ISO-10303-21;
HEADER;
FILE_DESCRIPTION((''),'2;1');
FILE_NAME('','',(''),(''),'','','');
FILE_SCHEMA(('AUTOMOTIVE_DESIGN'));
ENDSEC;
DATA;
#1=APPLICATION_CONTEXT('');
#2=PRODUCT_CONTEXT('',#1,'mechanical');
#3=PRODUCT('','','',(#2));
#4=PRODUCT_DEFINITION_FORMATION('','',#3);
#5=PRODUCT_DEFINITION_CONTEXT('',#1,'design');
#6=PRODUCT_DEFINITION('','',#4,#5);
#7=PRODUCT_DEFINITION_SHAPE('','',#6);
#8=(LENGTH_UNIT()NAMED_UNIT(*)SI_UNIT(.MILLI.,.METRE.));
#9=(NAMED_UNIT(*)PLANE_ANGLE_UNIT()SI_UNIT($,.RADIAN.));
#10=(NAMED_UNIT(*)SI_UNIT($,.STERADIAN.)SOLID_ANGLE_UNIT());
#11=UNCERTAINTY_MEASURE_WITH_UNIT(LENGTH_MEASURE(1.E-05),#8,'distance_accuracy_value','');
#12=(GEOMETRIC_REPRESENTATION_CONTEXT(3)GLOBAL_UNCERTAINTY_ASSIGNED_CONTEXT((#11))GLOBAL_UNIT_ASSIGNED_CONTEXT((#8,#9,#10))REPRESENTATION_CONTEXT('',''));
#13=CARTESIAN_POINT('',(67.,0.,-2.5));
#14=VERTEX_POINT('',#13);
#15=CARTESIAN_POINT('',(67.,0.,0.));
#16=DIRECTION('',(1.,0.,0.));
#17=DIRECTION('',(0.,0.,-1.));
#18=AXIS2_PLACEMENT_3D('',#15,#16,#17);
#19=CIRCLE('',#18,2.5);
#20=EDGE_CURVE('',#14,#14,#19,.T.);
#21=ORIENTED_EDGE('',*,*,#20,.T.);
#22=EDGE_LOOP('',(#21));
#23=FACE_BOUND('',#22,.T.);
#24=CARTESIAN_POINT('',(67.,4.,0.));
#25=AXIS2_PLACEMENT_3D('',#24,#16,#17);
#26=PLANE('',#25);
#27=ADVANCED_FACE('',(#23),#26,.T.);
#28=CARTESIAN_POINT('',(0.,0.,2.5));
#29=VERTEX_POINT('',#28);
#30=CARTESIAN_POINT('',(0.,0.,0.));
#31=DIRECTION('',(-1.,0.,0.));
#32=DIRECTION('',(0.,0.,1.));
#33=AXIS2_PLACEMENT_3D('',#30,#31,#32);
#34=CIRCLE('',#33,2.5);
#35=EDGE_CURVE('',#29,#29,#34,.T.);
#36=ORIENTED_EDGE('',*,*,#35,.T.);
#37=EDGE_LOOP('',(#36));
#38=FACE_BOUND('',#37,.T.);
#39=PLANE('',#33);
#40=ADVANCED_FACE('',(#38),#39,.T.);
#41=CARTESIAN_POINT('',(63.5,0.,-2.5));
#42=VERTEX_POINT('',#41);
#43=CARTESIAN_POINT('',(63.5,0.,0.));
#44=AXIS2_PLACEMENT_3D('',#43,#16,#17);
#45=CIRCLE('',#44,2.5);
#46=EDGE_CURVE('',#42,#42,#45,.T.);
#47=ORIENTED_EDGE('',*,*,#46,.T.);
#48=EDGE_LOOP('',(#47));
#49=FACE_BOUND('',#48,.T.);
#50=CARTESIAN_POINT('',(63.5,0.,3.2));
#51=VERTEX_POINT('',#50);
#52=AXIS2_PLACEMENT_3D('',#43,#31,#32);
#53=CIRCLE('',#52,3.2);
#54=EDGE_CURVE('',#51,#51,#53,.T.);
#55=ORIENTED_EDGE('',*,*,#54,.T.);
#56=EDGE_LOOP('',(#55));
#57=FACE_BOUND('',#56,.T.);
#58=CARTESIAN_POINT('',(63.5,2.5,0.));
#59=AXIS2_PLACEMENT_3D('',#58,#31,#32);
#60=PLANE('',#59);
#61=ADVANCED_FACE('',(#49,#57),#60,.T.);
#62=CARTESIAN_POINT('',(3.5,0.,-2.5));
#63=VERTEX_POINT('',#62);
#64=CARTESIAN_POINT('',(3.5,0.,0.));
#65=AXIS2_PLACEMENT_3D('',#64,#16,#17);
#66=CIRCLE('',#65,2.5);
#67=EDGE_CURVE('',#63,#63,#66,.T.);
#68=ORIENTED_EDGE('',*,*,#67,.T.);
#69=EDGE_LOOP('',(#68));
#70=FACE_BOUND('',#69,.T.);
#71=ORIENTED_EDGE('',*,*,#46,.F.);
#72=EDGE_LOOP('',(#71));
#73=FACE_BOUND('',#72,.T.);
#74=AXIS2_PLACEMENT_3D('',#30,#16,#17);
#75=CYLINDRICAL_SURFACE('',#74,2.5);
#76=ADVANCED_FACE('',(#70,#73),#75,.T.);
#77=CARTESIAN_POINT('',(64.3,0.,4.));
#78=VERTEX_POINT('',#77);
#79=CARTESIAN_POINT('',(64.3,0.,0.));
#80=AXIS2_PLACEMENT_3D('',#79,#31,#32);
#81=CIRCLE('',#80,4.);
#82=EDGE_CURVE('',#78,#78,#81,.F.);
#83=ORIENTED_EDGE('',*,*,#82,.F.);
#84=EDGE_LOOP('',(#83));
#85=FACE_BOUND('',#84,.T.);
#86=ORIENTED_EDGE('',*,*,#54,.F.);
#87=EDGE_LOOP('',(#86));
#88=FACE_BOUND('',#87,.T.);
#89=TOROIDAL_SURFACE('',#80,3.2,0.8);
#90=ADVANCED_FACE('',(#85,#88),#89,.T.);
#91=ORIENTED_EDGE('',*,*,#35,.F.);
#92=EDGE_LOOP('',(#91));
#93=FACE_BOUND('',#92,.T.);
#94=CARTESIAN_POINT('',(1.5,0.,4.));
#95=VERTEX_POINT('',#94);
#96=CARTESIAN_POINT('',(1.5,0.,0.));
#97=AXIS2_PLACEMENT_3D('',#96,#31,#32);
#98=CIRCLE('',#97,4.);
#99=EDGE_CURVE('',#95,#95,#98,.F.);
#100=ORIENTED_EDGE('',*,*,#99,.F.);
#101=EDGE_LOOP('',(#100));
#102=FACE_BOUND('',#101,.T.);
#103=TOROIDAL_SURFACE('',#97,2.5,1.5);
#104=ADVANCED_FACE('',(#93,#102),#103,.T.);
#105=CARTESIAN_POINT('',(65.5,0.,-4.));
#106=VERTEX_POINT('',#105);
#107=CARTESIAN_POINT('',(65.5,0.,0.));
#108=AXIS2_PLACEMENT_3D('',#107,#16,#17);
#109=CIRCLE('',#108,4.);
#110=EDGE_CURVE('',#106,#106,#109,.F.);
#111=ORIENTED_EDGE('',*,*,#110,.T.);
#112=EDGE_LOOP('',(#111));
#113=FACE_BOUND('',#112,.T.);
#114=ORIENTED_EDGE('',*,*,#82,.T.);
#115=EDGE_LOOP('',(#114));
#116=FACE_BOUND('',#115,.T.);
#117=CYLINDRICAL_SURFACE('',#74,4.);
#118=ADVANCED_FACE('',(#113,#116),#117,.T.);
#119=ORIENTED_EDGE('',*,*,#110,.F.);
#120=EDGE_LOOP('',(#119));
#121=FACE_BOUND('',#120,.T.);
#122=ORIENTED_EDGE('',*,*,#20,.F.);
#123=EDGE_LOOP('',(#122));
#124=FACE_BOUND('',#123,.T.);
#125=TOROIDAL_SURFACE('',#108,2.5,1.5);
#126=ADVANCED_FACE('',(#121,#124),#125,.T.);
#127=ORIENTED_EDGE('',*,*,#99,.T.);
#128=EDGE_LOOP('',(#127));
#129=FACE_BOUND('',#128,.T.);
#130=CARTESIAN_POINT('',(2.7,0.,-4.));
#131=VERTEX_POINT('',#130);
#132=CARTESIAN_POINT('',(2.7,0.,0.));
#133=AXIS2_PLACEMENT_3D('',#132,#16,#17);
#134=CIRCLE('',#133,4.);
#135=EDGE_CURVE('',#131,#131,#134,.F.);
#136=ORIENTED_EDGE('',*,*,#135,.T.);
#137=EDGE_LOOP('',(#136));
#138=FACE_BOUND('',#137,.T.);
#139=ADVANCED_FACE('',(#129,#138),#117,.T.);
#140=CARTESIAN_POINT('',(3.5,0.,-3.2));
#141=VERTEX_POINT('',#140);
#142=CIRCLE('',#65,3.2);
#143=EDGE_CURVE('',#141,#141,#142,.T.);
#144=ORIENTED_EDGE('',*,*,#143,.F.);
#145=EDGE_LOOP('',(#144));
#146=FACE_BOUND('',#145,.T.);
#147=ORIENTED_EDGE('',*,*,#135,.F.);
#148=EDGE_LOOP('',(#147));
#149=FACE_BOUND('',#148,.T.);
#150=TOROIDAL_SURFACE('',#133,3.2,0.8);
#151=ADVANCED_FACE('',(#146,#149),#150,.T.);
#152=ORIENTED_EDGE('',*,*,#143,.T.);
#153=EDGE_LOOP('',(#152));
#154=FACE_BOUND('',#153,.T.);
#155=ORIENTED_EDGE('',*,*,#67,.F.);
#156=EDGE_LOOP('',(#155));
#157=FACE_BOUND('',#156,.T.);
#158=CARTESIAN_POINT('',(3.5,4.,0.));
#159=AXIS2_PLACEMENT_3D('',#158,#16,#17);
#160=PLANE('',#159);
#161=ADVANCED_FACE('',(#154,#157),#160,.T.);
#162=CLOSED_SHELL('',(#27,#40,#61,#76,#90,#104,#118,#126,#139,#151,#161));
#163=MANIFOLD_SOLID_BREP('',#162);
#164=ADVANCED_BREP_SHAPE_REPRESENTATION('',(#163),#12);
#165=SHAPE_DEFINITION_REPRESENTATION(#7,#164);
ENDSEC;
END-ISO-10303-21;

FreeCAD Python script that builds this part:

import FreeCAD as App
import Part
import Sketcher

V = App.Vector
Q = App.Units.Quantity


def edges_at(feature, points):
    """Names of the edges that pass closest to the given points."""
    edges = feature.Shape.Edges
    near = lambda p: min(range(len(edges)), key=lambda i: edges[i].distToShape(Part.Vertex(*p))[0])
    return sorted({f"Edge{near(p) + 1}" for p in points})


def add_polygon(sketch, points):
    """Adds a closed chain of lines whose ends are joined by coincident constraints."""
    first, n = sketch.GeometryCount, len(points)
    for a, b in zip(points, points[1:] + points[:1]):
        sketch.addGeometry(Part.LineSegment(App.Vector(*a, 0), App.Vector(*b, 0)), False)
    for i in range(n):
        sketch.addConstraint(Sketcher.Constraint("Coincident", first + i, 2, first + (i + 1) % n, 1))

doc = App.newDocument("Part")
body = doc.addObject("PartDesign::Body", "Body")

# Sketch on XY plane
sketch1 = body.newObject("Sketcher::SketchObject", "Sketch")
sketch1.AttachmentSupport = (doc.getObject("XY_Plane"), [""])
sketch1.MapMode = "FlatFace"
add_polygon(sketch1, [(0, 4), (0, 0), (67, 0), (67, 4), (63.5, 4), (63.5, 2.5), (3.5, 2.5), (3.5, 4)])  # lines 0-7
sketch1.addConstraint([
    Sketcher.Constraint("Vertical", 0),
    Sketcher.Constraint("Horizontal", 1),
    Sketcher.Constraint("Vertical", 2),
    Sketcher.Constraint("Horizontal", 3),
    Sketcher.Constraint("Vertical", 4),
    Sketcher.Constraint("Horizontal", 5),
    Sketcher.Constraint("Vertical", 6),
    Sketcher.Constraint("Horizontal", 7),
    Sketcher.Constraint("Coincident", 0, 2, -1, 1),
    Sketcher.Constraint("Horizontal", 3, 2, 6, 2),
    Sketcher.Constraint("Equal", 3, 7),
    Sketcher.Constraint("DistanceX", 1, 1, 1, 2, Q("67 mm")),
    Sketcher.Constraint("DistanceX", 5, 2, 5, 1, Q("60 mm")),
    Sketcher.Constraint("DistanceY", 0, 2, 0, 1, Q("4 mm")),
    Sketcher.Constraint("DistanceY", 4, 2, 4, 1, Q("1.5 mm")),
])
revolution = body.newObject("PartDesign::Revolution", "Revolution")
revolution.Profile = sketch1
revolution.ReferenceAxis = (sketch1, ["H_Axis"])
revolution.Angle = 360
doc.recompute()

fillet = body.newObject("PartDesign::Fillet", "Fillet")
fillet.Base = (revolution, edges_at(revolution, [(63.5, 0, 4), (3.5, 0, 4)]))
fillet.Radius = 0.8
doc.recompute()

fillet2 = body.newObject("PartDesign::Fillet", "Fillet001")
fillet2.Base = (fillet, edges_at(fillet, [(67, 0, 4), (0, 0, 4)]))
fillet2.Radius = 1.5

doc.recompute()
